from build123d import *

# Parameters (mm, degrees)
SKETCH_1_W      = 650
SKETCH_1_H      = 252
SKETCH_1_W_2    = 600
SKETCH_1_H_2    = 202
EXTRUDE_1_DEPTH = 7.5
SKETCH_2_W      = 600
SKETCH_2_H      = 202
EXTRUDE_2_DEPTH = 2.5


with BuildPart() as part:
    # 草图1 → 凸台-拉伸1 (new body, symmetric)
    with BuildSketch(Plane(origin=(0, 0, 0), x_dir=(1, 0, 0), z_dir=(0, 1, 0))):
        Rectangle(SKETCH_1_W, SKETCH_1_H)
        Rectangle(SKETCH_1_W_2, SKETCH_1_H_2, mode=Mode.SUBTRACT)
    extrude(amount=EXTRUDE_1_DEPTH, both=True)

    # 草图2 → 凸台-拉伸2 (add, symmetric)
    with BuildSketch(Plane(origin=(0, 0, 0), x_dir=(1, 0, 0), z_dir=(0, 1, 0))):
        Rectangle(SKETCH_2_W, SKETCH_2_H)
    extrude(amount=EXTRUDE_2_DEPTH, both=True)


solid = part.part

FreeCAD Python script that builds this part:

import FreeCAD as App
import Part
import Sketcher
Q = App.Units.Quantity

doc = App.newDocument("Part")
body = doc.addObject("PartDesign::Body", "Body")

# Sketch on XZ plane
sketch1 = body.newObject("Sketcher::SketchObject", "Sketch")
sketch1.AttachmentSupport = (doc.getObject("XZ_Plane"), [""])
sketch1.MapMode = "FlatFace"
sketch1.addGeometry([
    Part.LineSegment(App.Vector(-325, -126, 0), App.Vector(-325, 126, 0)),  # 0
    Part.LineSegment(App.Vector(-325, 126, 0), App.Vector(325, 126, 0)),  # 1
    Part.LineSegment(App.Vector(325, 126, 0), App.Vector(325, -126, 0)),  # 2
    Part.LineSegment(App.Vector(325, -126, 0), App.Vector(-325, -126, 0)),  # 3
    Part.LineSegment(App.Vector(300, 101, 0), App.Vector(-300, 101, 0)),  # 4
    Part.LineSegment(App.Vector(-300, 101, 0), App.Vector(-300, -101, 0)),  # 5
    Part.LineSegment(App.Vector(-300, -101, 0), App.Vector(300, -101, 0)),  # 6
    Part.LineSegment(App.Vector(300, -101, 0), App.Vector(300, 101, 0)),  # 7
], False)
sketch1.addConstraint([
    Sketcher.Constraint("Coincident", 0, 2, 1, 1),
    Sketcher.Constraint("Coincident", 1, 2, 2, 1),
    Sketcher.Constraint("Coincident", 2, 2, 3, 1),
    Sketcher.Constraint("Coincident", 3, 2, 0, 1),
    Sketcher.Constraint("Coincident", 4, 2, 5, 1),
    Sketcher.Constraint("Coincident", 5, 2, 6, 1),
    Sketcher.Constraint("Coincident", 6, 2, 7, 1),
    Sketcher.Constraint("Coincident", 7, 2, 4, 1),
    Sketcher.Constraint("Vertical", 0),
    Sketcher.Constraint("Horizontal", 1),
    Sketcher.Constraint("Vertical", 2),
    Sketcher.Constraint("Horizontal", 3),
    Sketcher.Constraint("Horizontal", 4),
    Sketcher.Constraint("Vertical", 5),
    Sketcher.Constraint("Horizontal", 6),
    Sketcher.Constraint("Vertical", 7),
    Sketcher.Constraint("Symmetric", 0, 2, 2, 2, -1, 1),
    Sketcher.Constraint("Symmetric", 4, 2, 6, 2, -1, 1),
    Sketcher.Constraint("DistanceX", 1, 1, 1, 2, Q("650 mm")),
    Sketcher.Constraint("DistanceX", 4, 2, 4, 1, Q("600 mm")),
    Sketcher.Constraint("DistanceY", 0, 1, 0, 2, Q("252 mm")),
    Sketcher.Constraint("DistanceY", 5, 2, 5, 1, Q("202 mm")),
])
pad1 = body.newObject("PartDesign::Pad", "Pad")
pad1.Profile = sketch1
pad1.Length = 15
pad1.Midplane = True

# Sketch on XZ plane
sketch2 = body.newObject("Sketcher::SketchObject", "Sketch001")
sketch2.AttachmentSupport = (doc.getObject("XZ_Plane"), [""])
sketch2.MapMode = "FlatFace"
sketch2.addGeometry([
    Part.LineSegment(App.Vector(-300, -101, 0), App.Vector(-300, 101, 0)),
    Part.LineSegment(App.Vector(-300, 101, 0), App.Vector(300, 101, 0)),
    Part.LineSegment(App.Vector(300, 101, 0), App.Vector(300, -101, 0)),
    Part.LineSegment(App.Vector(300, -101, 0), App.Vector(-300, -101, 0)),
], False)
sketch2.addConstraint([
    Sketcher.Constraint("Coincident", 0, 2, 1, 1),
    Sketcher.Constraint("Coincident", 1, 2, 2, 1),
    Sketcher.Constraint("Coincident", 2, 2, 3, 1),
    Sketcher.Constraint("Coincident", 3, 2, 0, 1),
    Sketcher.Constraint("Vertical", 0),
    Sketcher.Constraint("Horizontal", 1),
    Sketcher.Constraint("Vertical", 2),
    Sketcher.Constraint("Horizontal", 3),
    Sketcher.Constraint("Symmetric", 0, 2, 2, 2, -1, 1),
    Sketcher.Constraint("DistanceX", 1, 1, 1, 2, Q("600 mm")),
    Sketcher.Constraint("DistanceY", 0, 1, 0, 2, Q("202 mm")),
])
pad2 = body.newObject("PartDesign::Pad", "Pad001")
pad2.Profile = sketch2
pad2.Length = 5
pad2.Midplane = True

doc.recompute()
